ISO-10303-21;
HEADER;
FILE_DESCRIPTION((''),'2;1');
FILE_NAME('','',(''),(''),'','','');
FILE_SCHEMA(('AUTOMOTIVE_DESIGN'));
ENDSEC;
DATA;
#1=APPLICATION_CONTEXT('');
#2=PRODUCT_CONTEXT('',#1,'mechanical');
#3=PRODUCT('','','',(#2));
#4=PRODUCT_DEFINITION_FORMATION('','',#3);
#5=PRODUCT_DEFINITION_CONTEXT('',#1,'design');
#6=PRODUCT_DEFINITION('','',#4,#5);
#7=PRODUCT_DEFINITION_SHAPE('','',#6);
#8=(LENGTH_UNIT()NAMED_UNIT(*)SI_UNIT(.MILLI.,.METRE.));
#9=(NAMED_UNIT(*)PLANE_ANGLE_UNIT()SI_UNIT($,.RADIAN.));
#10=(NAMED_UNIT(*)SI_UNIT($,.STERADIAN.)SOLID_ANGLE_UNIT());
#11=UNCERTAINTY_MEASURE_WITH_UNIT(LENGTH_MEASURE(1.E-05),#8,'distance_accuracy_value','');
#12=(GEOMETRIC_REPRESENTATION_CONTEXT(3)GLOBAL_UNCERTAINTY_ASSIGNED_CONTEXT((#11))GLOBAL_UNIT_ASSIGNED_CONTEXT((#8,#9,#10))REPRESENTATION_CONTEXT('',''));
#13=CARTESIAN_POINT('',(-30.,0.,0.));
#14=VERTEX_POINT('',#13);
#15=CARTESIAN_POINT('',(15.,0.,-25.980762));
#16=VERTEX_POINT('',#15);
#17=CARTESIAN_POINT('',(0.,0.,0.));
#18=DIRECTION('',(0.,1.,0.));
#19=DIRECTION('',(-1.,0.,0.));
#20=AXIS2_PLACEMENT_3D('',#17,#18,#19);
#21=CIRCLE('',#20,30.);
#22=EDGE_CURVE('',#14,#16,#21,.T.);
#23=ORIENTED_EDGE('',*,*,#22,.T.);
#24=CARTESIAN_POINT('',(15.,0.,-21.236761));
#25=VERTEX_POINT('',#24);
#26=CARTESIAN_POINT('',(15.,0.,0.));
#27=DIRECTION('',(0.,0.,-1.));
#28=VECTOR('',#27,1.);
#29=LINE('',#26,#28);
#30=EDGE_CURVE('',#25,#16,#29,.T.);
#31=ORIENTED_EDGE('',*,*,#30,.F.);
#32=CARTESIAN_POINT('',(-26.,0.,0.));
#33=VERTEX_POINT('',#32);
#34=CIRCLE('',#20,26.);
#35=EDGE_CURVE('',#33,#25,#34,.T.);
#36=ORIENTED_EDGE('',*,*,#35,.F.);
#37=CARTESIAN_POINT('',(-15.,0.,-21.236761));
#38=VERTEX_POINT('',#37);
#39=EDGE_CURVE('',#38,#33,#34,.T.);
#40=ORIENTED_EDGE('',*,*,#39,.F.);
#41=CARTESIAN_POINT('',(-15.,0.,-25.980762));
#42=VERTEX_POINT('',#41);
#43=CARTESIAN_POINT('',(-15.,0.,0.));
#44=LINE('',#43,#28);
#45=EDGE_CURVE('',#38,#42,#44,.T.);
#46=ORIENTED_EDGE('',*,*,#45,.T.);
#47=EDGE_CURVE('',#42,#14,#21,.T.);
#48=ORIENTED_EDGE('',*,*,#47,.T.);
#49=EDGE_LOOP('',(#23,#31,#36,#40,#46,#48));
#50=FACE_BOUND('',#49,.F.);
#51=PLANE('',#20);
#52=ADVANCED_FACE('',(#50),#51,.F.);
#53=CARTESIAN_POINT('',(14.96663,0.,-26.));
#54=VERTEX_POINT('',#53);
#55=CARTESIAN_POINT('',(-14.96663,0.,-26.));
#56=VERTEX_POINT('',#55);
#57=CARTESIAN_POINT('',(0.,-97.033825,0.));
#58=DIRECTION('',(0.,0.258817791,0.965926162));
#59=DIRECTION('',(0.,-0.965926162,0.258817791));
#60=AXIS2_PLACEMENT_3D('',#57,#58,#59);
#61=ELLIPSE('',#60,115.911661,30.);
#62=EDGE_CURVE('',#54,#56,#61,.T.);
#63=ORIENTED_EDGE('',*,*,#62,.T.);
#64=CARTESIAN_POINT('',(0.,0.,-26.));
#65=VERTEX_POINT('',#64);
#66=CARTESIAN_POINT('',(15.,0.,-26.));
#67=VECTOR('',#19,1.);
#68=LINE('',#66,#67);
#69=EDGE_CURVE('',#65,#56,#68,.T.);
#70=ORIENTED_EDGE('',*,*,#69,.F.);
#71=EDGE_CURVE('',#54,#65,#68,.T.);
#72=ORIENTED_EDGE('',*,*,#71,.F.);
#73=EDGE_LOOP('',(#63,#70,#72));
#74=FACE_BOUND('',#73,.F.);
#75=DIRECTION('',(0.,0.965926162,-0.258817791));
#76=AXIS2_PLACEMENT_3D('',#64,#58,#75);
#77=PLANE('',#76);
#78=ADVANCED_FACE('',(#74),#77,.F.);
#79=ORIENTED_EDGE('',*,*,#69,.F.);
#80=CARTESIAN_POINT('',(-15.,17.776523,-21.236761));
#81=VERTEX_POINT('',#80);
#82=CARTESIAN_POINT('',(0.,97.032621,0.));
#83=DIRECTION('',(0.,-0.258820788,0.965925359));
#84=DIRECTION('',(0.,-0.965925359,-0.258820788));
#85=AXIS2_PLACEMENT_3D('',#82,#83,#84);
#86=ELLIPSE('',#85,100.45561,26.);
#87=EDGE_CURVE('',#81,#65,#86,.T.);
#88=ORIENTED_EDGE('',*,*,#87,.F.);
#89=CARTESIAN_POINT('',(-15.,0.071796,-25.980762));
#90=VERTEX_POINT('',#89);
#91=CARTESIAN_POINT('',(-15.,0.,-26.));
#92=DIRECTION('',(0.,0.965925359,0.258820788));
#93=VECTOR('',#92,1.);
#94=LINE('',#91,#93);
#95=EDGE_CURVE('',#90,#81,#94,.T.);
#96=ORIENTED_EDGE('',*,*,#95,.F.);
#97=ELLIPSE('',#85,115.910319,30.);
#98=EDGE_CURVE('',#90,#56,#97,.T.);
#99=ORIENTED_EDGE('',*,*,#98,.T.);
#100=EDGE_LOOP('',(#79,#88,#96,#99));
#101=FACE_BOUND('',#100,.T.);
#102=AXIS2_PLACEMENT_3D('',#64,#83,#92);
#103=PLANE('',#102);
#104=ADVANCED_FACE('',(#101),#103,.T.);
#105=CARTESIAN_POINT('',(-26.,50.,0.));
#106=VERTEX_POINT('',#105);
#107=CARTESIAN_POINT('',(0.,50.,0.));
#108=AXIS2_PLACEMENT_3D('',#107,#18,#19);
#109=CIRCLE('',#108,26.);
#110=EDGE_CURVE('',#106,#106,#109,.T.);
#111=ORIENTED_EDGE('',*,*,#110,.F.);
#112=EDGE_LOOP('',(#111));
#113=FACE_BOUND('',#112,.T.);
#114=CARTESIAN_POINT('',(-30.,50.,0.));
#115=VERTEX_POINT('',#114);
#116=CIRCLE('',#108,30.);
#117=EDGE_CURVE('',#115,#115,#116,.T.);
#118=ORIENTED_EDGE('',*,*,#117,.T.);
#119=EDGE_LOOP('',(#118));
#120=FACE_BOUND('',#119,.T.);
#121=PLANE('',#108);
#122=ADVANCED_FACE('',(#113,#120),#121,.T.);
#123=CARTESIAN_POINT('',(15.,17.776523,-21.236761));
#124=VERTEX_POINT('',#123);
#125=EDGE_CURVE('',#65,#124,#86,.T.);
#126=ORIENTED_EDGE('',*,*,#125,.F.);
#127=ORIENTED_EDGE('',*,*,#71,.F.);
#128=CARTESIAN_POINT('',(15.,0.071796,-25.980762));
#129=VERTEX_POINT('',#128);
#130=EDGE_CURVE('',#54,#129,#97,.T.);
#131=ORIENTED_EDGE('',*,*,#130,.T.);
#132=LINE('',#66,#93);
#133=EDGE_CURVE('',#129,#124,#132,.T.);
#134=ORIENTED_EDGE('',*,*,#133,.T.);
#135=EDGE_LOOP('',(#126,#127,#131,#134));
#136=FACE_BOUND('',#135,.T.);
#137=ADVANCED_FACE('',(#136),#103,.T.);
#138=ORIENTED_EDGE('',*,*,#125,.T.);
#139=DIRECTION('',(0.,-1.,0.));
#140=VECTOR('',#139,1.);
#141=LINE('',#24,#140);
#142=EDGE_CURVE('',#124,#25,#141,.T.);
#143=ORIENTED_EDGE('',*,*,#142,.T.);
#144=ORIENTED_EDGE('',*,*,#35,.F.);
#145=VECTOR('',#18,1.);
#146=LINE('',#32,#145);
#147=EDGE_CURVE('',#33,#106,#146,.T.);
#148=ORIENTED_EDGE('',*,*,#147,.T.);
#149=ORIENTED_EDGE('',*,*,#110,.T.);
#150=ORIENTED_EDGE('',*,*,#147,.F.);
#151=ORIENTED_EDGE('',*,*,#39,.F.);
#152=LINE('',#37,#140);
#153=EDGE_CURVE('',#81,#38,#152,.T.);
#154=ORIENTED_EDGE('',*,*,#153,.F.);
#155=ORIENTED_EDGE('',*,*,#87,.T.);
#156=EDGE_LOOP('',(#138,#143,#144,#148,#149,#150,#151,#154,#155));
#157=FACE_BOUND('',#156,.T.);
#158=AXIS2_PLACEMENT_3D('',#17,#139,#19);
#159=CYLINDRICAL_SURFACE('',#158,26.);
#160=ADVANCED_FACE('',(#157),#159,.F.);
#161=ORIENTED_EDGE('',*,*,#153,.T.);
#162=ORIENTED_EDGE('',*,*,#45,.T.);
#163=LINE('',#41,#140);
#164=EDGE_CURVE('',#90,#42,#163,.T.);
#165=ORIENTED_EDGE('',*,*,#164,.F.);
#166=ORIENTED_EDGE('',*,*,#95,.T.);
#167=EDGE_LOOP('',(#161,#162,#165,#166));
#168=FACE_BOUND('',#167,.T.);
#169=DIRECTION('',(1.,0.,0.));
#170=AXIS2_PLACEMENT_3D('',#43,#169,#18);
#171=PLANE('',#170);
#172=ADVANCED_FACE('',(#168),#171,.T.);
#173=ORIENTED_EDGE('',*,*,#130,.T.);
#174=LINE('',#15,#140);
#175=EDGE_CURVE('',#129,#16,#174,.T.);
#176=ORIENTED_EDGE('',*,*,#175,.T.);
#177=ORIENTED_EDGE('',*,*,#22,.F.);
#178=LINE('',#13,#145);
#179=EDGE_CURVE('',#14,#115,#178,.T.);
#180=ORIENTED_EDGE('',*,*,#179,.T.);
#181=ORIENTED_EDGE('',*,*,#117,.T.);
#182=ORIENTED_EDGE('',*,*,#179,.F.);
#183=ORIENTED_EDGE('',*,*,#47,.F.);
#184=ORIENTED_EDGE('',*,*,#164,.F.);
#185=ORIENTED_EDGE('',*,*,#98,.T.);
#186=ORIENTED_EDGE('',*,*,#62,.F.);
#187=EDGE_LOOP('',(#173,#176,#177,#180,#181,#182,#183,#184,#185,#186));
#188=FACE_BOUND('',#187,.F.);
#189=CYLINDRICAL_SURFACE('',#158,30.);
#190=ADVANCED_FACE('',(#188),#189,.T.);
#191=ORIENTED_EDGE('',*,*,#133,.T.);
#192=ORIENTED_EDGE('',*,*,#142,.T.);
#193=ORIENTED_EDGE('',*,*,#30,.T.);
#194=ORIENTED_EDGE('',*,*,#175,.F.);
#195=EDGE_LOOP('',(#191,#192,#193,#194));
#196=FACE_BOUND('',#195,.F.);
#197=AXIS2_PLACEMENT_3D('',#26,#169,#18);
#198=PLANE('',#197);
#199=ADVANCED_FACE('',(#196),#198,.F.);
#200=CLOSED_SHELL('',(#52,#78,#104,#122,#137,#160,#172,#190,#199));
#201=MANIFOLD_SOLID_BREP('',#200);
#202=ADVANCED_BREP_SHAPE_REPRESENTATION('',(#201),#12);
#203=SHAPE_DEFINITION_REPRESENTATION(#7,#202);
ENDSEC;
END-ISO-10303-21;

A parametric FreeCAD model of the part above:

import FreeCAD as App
import Part
import Sketcher
Q = App.Units.Quantity

doc = App.newDocument("Part")
body = doc.addObject("PartDesign::Body", "Body")

# Sketch on XZ plane
sketch1 = body.newObject("Sketcher::SketchObject", "Sketch")
sketch1.AttachmentSupport = (doc.getObject("XZ_Plane"), [""])
sketch1.MapMode = "FlatFace"
sketch1.addGeometry([
    Part.Circle(App.Vector(0, 0, 0), App.Vector(0, 0, 1), 30),
    Part.Circle(App.Vector(0, 0, 0), App.Vector(0, 0, 1), 26),
], False)
sketch1.addConstraint([
    Sketcher.Constraint("Coincident", 0, 3, -1, 1),
    Sketcher.Constraint("Coincident", 1, 3, -1, 1),
    Sketcher.Constraint("Diameter", 0, 60.0),
    Sketcher.Constraint("Diameter", 1, 52.0),
])
pad1 = body.newObject("PartDesign::Pad", "Pad")
pad1.Profile = sketch1
pad1.Length = 50
pad1.Reversed = True

# Sketch on YZ plane
sketch2 = body.newObject("Sketcher::SketchObject", "Sketch001")
sketch2.AttachmentSupport = (doc.getObject("YZ_Plane"), [""])
sketch2.MapMode = "FlatFace"
sketch2.addGeometry([
    Part.LineSegment(App.Vector(19.4, -20.8, 0), App.Vector(-2.5, -20.8, 0)),  # 0
    Part.LineSegment(App.Vector(-2.5, -20.8, 0), App.Vector(-2.5, -32.4, 0)),  # 1
    Part.LineSegment(App.Vector(-2.5, -32.4, 0), App.Vector(20.8, -32.4, 0)),  # 2
    Part.LineSegment(App.Vector(20.8, -32.4, 0), App.Vector(20.8, -31.6, 0)),  # 3
    Part.LineSegment(App.Vector(20.8, -31.6, 0), App.Vector(0, -26, 0)),  # 4
    Part.LineSegment(App.Vector(0, -26, 0), App.Vector(19.4, -20.8, 0)),  # 5
], False)
sketch2.addConstraint([
    Sketcher.Constraint("Coincident", 0, 2, 1, 1),
    Sketcher.Constraint("Coincident", 1, 2, 2, 1),
    Sketcher.Constraint("Coincident", 2, 2, 3, 1),
    Sketcher.Constraint("Coincident", 3, 2, 4, 1),
    Sketcher.Constraint("Coincident", 4, 2, 5, 1),
    Sketcher.Constraint("Coincident", 5, 2, 0, 1),
    Sketcher.Constraint("Horizontal", 0),
    Sketcher.Constraint("Vertical", 1),
    Sketcher.Constraint("Horizontal", 2),
    Sketcher.Constraint("Vertical", 3),
    Sketcher.Constraint("PointOnObject", 4, 2, -2),
    Sketcher.Constraint("Angle", 5, Q("15 deg")),
    Sketcher.Constraint("Angle", 4, Q("165 deg")),
    Sketcher.Constraint("DistanceY", 4, 2, -1, 1, 26.0),
    Sketcher.Constraint("DistanceX", 2, 1, 2, 2, 23.285),
    Sketcher.Constraint("DistanceY", 1, 2, 1, 1, 11.563),
    Sketcher.Constraint("DistanceY", 1, 2, -1, 1, 32.37),
    Sketcher.Constraint("DistanceX", -1, 1, 2, 2, 20.82),
])
pocket1 = body.newObject("PartDesign::Pocket", "Pocket")
pocket1.Profile = sketch2
pocket1.Length = 30
pocket1.Midplane = True

doc.recompute()
